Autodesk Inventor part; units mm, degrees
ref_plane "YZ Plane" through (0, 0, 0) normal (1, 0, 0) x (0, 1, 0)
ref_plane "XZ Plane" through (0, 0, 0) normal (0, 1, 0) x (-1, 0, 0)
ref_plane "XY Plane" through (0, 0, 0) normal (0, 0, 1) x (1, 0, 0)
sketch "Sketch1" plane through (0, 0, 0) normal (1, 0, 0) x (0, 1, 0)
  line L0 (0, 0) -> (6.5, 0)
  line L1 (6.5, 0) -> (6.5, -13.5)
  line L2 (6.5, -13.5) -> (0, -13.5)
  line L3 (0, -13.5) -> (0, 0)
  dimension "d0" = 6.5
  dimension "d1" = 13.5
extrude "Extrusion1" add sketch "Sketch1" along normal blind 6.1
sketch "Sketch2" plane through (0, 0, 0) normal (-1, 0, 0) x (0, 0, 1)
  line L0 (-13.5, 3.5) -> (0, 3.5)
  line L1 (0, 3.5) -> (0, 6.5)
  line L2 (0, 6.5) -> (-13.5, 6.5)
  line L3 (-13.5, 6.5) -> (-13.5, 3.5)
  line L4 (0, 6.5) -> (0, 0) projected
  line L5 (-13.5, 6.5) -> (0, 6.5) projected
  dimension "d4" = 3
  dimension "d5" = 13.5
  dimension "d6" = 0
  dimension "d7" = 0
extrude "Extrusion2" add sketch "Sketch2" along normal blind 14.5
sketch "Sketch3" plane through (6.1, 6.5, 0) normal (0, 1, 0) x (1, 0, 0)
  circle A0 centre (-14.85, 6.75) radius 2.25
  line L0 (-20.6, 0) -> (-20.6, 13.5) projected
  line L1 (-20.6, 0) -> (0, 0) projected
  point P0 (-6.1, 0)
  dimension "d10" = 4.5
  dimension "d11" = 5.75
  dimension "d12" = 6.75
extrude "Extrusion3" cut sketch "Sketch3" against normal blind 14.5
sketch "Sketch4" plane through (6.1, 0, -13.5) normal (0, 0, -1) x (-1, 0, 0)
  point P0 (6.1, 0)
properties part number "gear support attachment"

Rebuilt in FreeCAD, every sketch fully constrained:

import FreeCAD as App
import Part
import Sketcher
from FreeCAD import Vector
Q = App.Units.Quantity

doc = App.newDocument("Part")
params = doc.addObject("Spreadsheet::Sheet", "Params")
for row, (alias, value) in enumerate([
    ("sketch1_width", "6.5 mm"),
    ("sketch1_height", "13.5 mm"),
    ("pad1_length", "6.1 mm"),
    ("sketch2_width", "3 mm"),
    ("sketch2_height", "13.5 mm"),
    ("pad2_length", "14.5 mm"),
    ("sketch3_diameter", "4.5 mm"),
    ("pocket1_length", "14.5 mm"),
], start=1):
    params.set(f"A{row}", alias)
    params.set(f"B{row}", "=" + value)
    params.setAlias(f"B{row}", alias)

body = doc.addObject("PartDesign::Body", "Body")

# Sketch on YZ plane
sketch1 = body.newObject("Sketcher::SketchObject", "Sketch")
sketch1.AttachmentSupport = (doc.getObject("YZ_Plane"), [""])
sketch1.MapMode = "FlatFace"
sketch1.addGeometry(Part.LineSegment(Vector(6, 0, 0), Vector(0, 0, 0)), False)
sketch1.addGeometry(Part.LineSegment(Vector(0, 0, 0), Vector(0, -14, 0)), False)
sketch1.addGeometry(Part.LineSegment(Vector(0, -14, 0), Vector(6, -14, 0)), False)
sketch1.addGeometry(Part.LineSegment(Vector(6, -14, 0), Vector(6, 0, 0)), False)
sketch1.addConstraint(Sketcher.Constraint("Coincident", 0, 2, 1, 1))
sketch1.addConstraint(Sketcher.Constraint("Coincident", 1, 2, 2, 1))
sketch1.addConstraint(Sketcher.Constraint("Coincident", 2, 2, 3, 1))
sketch1.addConstraint(Sketcher.Constraint("Coincident", 3, 2, 0, 1))
sketch1.addConstraint(Sketcher.Constraint("Horizontal", 0))
sketch1.addConstraint(Sketcher.Constraint("Vertical", 1))
sketch1.addConstraint(Sketcher.Constraint("Horizontal", 2))
sketch1.addConstraint(Sketcher.Constraint("Vertical", 3))
sketch1.addConstraint(Sketcher.Constraint("Coincident", 0, 2, -1, 1))
sketch1.addConstraint(Sketcher.Constraint("DistanceX", 0, 2, 0, 1, Q("6.5 mm")))
sketch1.addConstraint(Sketcher.Constraint("DistanceY", 1, 2, 1, 1, Q("13.5 mm")))
sketch1.setExpression("Constraints[9]", "Params.sketch1_width")
sketch1.setExpression("Constraints[10]", "Params.sketch1_height")
pad1 = body.newObject("PartDesign::Pad", "Pad")
pad1.Profile = sketch1
pad1.setExpression("Length", "Params.pad1_length")

# Sketch on YZ plane
sketch2 = body.newObject("Sketcher::SketchObject", "Sketch001")
sketch2.AttachmentSupport = (doc.getObject("YZ_Plane"), [""])
sketch2.MapMode = "FlatFace"
sketch2.addGeometry(Part.LineSegment(Vector(6.5, -13.5, 0), Vector(3.5, -13.5, 0)), False)
sketch2.addGeometry(Part.LineSegment(Vector(3.5, -13.5, 0), Vector(3.5, 0, 0)), False)
sketch2.addGeometry(Part.LineSegment(Vector(3.5, 0, 0), Vector(6.5, 0, 0)), False)
sketch2.addGeometry(Part.LineSegment(Vector(6.5, 0, 0), Vector(6.5, -13.5, 0)), False)
sketch2.addConstraint(Sketcher.Constraint("Coincident", 0, 2, 1, 1))
sketch2.addConstraint(Sketcher.Constraint("Coincident", 1, 2, 2, 1))
sketch2.addConstraint(Sketcher.Constraint("Coincident", 2, 2, 3, 1))
sketch2.addConstraint(Sketcher.Constraint("Coincident", 3, 2, 0, 1))
sketch2.addConstraint(Sketcher.Constraint("Horizontal", 0))
sketch2.addConstraint(Sketcher.Constraint("Vertical", 1))
sketch2.addConstraint(Sketcher.Constraint("Horizontal", 2))
sketch2.addConstraint(Sketcher.Constraint("Vertical", 3))
sketch2.addConstraint(Sketcher.Constraint("PointOnObject", 1, 2, -1))
sketch2.addConstraint(Sketcher.Constraint("DistanceX", 0, 2, 0, 1, Q("3 mm")))
sketch2.addConstraint(Sketcher.Constraint("DistanceY", 1, 1, 1, 2, Q("13.5 mm")))
sketch2.addConstraint(Sketcher.Constraint("DistanceX", -1, 1, 0, 2, Q("3.5 mm")))
sketch2.setExpression("Constraints[9]", "Params.sketch2_width")
sketch2.setExpression("Constraints[10]", "Params.sketch2_height")
pad2 = body.newObject("PartDesign::Pad", "Pad001")
pad2.Profile = sketch2
pad2.setExpression("Length", "Params.pad2_length")
pad2.Reversed = True

# Sketch on XZ plane
sketch3 = body.newObject("Sketcher::SketchObject", "Sketch002")
sketch3.AttachmentSupport = (doc.getObject("XZ_Plane"), [""])
sketch3.MapMode = "FlatFace"
sketch3.AttachmentOffset = App.Placement(Vector(0, 0, -6.5), App.Rotation())
sketch3.addGeometry(Part.Circle(Vector(-8.8, -6.8, 0), Vector(0, 0, 1), 2.2), False)
sketch3.addConstraint(Sketcher.Constraint("Diameter", 0, Q("4.5 mm")))
sketch3.addConstraint(Sketcher.Constraint("DistanceY", 0, 3, -1, 1, Q("6.75 mm")))
sketch3.addConstraint(Sketcher.Constraint("DistanceX", 0, 3, -1, 1, Q("8.75 mm")))
sketch3.setExpression("Constraints[0]", "Params.sketch3_diameter")
pocket1 = body.newObject("PartDesign::Pocket", "Pocket")
pocket1.Profile = sketch3
pocket1.setExpression("Length", "Params.pocket1_length")
pocket1.Reversed = True

doc.recompute()
